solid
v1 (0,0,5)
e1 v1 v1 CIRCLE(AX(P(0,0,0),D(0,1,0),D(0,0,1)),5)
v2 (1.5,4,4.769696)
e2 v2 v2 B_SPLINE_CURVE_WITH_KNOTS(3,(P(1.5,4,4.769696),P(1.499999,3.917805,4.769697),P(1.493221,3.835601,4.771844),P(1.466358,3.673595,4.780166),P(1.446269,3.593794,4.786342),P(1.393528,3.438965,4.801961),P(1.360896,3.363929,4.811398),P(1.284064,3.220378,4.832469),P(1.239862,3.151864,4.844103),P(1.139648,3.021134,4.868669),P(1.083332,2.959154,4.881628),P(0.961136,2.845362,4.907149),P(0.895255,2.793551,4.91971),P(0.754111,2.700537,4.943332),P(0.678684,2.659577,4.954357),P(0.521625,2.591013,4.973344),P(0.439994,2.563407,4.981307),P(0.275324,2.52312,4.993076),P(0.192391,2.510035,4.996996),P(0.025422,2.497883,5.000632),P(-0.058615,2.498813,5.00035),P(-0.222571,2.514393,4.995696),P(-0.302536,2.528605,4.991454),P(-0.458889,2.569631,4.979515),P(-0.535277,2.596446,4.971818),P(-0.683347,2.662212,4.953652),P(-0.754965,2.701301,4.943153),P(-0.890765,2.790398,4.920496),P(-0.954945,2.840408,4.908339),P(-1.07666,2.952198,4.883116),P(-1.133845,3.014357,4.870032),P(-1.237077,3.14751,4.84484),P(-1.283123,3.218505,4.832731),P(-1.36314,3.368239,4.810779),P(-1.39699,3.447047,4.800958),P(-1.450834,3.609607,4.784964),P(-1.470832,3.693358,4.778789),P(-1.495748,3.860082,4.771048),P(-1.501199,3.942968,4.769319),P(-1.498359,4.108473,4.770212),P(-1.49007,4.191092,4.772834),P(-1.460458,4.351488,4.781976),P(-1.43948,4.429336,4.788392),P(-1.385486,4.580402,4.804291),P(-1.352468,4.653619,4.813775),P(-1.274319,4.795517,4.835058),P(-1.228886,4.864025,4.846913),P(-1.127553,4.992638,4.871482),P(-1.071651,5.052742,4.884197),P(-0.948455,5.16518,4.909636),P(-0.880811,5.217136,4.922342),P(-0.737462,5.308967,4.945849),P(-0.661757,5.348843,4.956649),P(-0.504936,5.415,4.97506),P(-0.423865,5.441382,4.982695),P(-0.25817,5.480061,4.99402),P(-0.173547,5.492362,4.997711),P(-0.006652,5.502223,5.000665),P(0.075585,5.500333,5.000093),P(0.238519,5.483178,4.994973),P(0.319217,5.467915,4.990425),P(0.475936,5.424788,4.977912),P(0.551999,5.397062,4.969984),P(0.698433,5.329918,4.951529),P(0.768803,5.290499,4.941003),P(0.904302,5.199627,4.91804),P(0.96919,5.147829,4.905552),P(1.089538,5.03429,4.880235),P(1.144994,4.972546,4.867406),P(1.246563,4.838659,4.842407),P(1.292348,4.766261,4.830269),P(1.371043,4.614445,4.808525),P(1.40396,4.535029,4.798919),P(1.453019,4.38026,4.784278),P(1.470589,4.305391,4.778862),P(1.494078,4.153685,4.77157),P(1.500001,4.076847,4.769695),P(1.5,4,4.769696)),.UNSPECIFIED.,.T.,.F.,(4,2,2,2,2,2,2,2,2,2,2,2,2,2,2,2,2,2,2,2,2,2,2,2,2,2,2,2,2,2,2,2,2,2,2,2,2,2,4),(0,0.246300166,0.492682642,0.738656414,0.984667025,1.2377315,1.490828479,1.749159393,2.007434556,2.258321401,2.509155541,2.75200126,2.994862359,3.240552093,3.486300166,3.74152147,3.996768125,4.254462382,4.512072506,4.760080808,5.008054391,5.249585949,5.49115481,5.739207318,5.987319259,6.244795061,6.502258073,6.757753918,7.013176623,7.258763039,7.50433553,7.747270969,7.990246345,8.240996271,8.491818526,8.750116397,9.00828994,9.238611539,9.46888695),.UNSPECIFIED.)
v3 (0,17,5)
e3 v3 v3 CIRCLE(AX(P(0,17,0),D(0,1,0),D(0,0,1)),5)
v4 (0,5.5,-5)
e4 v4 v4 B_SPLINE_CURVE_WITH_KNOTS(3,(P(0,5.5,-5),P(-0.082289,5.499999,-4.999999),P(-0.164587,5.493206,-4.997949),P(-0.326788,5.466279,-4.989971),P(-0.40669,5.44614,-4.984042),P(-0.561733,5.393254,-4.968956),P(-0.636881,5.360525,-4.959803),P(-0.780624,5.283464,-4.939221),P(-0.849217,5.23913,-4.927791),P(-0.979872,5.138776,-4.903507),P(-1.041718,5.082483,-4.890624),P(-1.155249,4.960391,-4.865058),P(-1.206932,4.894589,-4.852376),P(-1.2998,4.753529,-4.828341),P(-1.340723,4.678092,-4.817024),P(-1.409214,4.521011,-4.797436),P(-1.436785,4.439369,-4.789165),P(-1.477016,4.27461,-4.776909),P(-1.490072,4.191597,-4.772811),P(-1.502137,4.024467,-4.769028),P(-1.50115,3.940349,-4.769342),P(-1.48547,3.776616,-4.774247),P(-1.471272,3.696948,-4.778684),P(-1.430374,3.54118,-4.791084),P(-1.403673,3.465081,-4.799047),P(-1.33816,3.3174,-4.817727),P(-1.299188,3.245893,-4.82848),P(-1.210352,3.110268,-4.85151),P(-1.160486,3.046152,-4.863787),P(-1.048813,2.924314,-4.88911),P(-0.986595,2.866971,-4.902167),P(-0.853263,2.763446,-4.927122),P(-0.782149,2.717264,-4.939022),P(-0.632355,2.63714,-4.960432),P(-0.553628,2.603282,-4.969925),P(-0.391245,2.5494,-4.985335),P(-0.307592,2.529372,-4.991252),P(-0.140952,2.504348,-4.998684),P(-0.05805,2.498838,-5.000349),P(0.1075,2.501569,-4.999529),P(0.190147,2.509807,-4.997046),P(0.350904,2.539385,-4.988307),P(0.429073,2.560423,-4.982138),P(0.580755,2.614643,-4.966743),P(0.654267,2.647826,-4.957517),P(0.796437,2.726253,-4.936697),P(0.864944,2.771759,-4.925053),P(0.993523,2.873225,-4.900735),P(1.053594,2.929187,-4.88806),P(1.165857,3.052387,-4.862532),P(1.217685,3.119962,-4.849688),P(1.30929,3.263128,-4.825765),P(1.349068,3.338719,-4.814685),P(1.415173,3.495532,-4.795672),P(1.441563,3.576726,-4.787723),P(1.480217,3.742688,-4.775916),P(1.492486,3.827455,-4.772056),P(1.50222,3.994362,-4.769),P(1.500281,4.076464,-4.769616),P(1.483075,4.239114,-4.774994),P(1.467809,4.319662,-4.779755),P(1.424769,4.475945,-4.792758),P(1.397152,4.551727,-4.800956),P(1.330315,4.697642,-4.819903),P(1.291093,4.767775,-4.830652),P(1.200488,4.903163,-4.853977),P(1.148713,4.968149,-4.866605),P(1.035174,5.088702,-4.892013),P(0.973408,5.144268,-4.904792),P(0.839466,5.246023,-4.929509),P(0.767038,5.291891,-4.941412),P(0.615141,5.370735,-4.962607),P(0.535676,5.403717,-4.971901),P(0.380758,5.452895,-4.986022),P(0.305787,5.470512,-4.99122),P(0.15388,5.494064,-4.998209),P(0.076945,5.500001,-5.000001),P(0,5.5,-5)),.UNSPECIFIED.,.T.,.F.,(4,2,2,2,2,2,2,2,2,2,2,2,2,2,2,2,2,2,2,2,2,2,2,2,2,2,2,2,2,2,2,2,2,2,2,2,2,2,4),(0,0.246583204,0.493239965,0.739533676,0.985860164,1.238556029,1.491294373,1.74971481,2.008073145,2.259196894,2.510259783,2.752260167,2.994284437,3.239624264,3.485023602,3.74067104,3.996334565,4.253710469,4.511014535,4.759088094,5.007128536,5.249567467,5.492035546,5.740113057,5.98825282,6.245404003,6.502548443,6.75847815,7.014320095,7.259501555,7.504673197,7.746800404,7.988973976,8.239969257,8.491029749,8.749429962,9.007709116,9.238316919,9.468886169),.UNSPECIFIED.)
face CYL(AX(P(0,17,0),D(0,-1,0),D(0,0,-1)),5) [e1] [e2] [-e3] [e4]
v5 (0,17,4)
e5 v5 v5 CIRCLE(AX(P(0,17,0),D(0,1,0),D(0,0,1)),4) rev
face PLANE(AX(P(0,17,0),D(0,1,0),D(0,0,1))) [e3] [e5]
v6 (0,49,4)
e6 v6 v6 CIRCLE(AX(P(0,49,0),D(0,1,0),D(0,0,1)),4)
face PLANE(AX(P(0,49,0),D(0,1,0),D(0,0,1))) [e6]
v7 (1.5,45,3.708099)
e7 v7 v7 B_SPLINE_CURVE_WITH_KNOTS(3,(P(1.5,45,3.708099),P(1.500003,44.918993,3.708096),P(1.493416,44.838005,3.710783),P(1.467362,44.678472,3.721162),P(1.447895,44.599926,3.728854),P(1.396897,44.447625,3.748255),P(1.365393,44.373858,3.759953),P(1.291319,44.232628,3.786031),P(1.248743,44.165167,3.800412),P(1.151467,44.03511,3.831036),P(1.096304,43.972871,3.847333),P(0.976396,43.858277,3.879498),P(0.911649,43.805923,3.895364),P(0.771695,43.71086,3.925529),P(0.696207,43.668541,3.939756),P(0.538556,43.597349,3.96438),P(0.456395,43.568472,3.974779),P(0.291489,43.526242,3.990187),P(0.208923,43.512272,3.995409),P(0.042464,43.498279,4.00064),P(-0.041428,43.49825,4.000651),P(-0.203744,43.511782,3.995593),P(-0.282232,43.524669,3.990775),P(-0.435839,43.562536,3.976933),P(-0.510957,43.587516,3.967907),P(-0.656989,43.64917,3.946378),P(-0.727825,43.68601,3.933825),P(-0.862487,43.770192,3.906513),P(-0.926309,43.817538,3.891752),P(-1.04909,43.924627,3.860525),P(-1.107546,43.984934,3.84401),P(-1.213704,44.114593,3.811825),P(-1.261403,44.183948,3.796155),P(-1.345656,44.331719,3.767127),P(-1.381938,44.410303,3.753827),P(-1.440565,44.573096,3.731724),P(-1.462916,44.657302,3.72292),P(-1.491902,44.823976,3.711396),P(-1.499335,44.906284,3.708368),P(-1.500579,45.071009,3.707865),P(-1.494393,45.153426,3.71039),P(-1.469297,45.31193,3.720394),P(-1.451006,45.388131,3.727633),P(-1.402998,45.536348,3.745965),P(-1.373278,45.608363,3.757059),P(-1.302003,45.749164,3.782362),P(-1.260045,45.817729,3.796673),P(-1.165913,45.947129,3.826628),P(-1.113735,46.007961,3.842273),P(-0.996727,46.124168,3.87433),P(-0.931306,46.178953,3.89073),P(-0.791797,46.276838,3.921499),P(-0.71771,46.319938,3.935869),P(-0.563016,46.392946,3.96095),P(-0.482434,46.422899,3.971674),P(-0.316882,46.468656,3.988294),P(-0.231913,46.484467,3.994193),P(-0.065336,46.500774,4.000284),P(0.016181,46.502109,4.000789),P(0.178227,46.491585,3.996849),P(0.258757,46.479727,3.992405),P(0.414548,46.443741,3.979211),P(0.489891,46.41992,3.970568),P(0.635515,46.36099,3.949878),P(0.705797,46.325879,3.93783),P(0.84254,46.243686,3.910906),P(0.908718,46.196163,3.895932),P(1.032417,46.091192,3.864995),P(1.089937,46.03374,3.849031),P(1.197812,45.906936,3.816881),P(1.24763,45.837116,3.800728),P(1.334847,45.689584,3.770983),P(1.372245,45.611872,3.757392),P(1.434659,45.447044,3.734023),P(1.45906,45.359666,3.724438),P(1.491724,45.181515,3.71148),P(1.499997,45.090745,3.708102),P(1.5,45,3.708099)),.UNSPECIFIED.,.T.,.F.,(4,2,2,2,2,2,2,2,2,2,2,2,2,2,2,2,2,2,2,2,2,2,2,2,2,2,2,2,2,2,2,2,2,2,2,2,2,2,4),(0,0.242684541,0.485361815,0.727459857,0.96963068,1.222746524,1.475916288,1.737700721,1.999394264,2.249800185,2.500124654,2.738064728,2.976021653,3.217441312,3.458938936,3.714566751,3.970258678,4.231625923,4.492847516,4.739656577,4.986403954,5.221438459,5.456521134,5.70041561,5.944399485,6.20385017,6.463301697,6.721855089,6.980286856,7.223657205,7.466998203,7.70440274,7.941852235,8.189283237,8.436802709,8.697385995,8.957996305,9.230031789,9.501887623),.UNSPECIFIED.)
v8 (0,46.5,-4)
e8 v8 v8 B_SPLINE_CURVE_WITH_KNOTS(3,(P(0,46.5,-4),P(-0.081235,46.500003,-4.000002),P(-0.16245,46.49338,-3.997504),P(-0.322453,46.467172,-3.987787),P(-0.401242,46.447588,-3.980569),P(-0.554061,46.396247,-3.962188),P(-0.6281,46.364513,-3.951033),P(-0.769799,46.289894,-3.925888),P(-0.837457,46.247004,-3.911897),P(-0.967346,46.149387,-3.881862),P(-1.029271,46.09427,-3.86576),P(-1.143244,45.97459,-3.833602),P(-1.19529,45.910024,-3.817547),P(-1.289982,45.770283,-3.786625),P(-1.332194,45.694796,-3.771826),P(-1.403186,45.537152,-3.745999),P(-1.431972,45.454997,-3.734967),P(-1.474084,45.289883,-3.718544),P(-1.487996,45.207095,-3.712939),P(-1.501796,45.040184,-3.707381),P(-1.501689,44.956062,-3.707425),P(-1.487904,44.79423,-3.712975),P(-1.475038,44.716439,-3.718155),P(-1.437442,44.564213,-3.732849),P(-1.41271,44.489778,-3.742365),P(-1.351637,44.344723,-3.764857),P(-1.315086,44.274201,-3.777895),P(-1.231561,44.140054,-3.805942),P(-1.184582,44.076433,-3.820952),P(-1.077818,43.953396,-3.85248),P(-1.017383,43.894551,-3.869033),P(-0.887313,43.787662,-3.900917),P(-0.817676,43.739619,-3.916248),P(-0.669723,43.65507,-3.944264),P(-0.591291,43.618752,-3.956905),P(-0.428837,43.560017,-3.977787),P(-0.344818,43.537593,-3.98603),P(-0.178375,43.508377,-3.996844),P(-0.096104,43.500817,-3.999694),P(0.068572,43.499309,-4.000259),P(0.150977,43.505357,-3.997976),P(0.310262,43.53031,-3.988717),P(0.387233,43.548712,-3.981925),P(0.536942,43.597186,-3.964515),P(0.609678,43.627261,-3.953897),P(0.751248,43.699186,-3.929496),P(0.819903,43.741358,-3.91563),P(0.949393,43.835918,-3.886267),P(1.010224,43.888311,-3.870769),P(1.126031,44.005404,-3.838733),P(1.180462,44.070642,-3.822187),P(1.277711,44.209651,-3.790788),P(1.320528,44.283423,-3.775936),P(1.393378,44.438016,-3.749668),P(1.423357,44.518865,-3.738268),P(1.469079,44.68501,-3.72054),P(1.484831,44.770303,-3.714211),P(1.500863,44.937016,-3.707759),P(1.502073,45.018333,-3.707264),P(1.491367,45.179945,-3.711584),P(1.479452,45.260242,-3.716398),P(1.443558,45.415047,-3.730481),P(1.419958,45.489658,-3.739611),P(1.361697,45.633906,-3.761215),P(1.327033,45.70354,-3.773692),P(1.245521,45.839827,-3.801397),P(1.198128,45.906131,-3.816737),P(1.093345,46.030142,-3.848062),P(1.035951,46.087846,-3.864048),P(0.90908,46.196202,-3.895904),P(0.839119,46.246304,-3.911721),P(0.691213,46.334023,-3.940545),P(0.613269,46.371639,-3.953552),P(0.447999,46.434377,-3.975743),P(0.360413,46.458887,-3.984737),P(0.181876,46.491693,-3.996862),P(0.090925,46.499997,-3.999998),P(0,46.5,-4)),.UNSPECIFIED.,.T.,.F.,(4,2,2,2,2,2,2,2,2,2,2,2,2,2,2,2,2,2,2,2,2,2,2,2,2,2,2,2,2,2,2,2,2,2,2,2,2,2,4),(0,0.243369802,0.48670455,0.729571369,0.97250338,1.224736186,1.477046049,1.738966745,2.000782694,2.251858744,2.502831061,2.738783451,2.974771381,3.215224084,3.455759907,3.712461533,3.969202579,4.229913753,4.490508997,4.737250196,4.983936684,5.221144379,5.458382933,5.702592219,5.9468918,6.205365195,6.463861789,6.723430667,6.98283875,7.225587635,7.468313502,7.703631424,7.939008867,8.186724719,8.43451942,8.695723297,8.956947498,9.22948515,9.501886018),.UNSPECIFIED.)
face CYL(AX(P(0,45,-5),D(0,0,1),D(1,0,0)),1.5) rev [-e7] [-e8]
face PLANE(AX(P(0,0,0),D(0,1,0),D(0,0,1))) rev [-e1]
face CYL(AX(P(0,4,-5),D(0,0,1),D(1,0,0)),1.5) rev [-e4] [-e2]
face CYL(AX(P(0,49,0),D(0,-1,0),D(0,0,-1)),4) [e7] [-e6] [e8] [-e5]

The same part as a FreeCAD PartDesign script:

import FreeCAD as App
import Part
import Sketcher

V = App.Vector

doc = App.newDocument("Part")
params = doc.addObject("Spreadsheet::Sheet", "Params")
for row, (alias, value) in enumerate([
    ("sketch1_diameter", "10 mm"),
    ("sketch1_diameter2", "8 mm"),
    ("pad1_length", "17 mm"),
    ("sketch2_diameter", "8 mm"),
    ("pad2_length", "49 mm"),
    ("sketch3_diameter", "3 mm"),
], start=1):
    params.set(f"A{row}", alias)
    params.set(f"B{row}", "=" + value)
    params.setAlias(f"B{row}", alias)

body = doc.addObject("PartDesign::Body", "Body")

# Sketch on XZ plane
sketch1 = body.newObject("Sketcher::SketchObject", "Sketch")
sketch1.AttachmentSupport = (doc.getObject("XZ_Plane"), [""])
sketch1.MapMode = "FlatFace"
sketch1.addGeometry(Part.Circle(V(0, 0, 0), V(0, 0, 1), 5), False)
sketch1.addGeometry(Part.Circle(V(0, 0, 0), V(0, 0, 1), 4), False)
sketch1.addConstraint(Sketcher.Constraint("Coincident", 0, 3, -1, 1))
sketch1.addConstraint(Sketcher.Constraint("Coincident", 1, 3, -1, 1))
sketch1.addConstraint(Sketcher.Constraint("Diameter", 0, 10.0))
sketch1.addConstraint(Sketcher.Constraint("Diameter", 1, 8.0))
sketch1.setExpression("Constraints[2]", "Params.sketch1_diameter")
sketch1.setExpression("Constraints[3]", "Params.sketch1_diameter2")
pad1 = body.newObject("PartDesign::Pad", "Pad")
pad1.Profile = sketch1
pad1.setExpression("Length", "Params.pad1_length")
pad1.Reversed = True

# Sketch on XZ plane
sketch2 = body.newObject("Sketcher::SketchObject", "Sketch001")
sketch2.AttachmentSupport = (doc.getObject("XZ_Plane"), [""])
sketch2.MapMode = "FlatFace"
sketch2.addGeometry(Part.Circle(V(0, 0, 0), V(0, 0, 1), 4), False)
sketch2.addConstraint(Sketcher.Constraint("Coincident", 0, 3, -1, 1))
sketch2.addConstraint(Sketcher.Constraint("Diameter", 0, 8.0))
sketch2.setExpression("Constraints[1]", "Params.sketch2_diameter")
pad2 = body.newObject("PartDesign::Pad", "Pad001")
pad2.Profile = sketch2
pad2.setExpression("Length", "Params.pad2_length")
pad2.Reversed = True

# Sketch on XY plane
sketch3 = body.newObject("Sketcher::SketchObject", "Sketch002")
sketch3.AttachmentSupport = (doc.getObject("XY_Plane"), [""])
sketch3.MapMode = "FlatFace"
sketch3.addGeometry(Part.Circle(V(0, 45, 0), V(0, 0, 1), 1.5), False)
sketch3.addGeometry(Part.Circle(V(0, 4, 0), V(0, 0, 1), 1.5), False)
sketch3.addConstraint(Sketcher.Constraint("Equal", 0, 1))
sketch3.addConstraint(Sketcher.Constraint("PointOnObject", 0, 3, -2))
sketch3.addConstraint(Sketcher.Constraint("PointOnObject", 1, 3, -2))
sketch3.addConstraint(Sketcher.Constraint("Diameter", 0, 3.0))
sketch3.addConstraint(Sketcher.Constraint("DistanceY", -1, 1, 0, 3, 45.0))
sketch3.addConstraint(Sketcher.Constraint("DistanceY", -1, 1, 1, 3, 4.0))
sketch3.setExpression("Constraints[3]", "Params.sketch3_diameter")
pocket1 = body.newObject("PartDesign::Pocket", "Pocket")
pocket1.Profile = sketch3
pocket1.Type = "ThroughAll"
pocket1.Midplane = True

doc.recompute()
